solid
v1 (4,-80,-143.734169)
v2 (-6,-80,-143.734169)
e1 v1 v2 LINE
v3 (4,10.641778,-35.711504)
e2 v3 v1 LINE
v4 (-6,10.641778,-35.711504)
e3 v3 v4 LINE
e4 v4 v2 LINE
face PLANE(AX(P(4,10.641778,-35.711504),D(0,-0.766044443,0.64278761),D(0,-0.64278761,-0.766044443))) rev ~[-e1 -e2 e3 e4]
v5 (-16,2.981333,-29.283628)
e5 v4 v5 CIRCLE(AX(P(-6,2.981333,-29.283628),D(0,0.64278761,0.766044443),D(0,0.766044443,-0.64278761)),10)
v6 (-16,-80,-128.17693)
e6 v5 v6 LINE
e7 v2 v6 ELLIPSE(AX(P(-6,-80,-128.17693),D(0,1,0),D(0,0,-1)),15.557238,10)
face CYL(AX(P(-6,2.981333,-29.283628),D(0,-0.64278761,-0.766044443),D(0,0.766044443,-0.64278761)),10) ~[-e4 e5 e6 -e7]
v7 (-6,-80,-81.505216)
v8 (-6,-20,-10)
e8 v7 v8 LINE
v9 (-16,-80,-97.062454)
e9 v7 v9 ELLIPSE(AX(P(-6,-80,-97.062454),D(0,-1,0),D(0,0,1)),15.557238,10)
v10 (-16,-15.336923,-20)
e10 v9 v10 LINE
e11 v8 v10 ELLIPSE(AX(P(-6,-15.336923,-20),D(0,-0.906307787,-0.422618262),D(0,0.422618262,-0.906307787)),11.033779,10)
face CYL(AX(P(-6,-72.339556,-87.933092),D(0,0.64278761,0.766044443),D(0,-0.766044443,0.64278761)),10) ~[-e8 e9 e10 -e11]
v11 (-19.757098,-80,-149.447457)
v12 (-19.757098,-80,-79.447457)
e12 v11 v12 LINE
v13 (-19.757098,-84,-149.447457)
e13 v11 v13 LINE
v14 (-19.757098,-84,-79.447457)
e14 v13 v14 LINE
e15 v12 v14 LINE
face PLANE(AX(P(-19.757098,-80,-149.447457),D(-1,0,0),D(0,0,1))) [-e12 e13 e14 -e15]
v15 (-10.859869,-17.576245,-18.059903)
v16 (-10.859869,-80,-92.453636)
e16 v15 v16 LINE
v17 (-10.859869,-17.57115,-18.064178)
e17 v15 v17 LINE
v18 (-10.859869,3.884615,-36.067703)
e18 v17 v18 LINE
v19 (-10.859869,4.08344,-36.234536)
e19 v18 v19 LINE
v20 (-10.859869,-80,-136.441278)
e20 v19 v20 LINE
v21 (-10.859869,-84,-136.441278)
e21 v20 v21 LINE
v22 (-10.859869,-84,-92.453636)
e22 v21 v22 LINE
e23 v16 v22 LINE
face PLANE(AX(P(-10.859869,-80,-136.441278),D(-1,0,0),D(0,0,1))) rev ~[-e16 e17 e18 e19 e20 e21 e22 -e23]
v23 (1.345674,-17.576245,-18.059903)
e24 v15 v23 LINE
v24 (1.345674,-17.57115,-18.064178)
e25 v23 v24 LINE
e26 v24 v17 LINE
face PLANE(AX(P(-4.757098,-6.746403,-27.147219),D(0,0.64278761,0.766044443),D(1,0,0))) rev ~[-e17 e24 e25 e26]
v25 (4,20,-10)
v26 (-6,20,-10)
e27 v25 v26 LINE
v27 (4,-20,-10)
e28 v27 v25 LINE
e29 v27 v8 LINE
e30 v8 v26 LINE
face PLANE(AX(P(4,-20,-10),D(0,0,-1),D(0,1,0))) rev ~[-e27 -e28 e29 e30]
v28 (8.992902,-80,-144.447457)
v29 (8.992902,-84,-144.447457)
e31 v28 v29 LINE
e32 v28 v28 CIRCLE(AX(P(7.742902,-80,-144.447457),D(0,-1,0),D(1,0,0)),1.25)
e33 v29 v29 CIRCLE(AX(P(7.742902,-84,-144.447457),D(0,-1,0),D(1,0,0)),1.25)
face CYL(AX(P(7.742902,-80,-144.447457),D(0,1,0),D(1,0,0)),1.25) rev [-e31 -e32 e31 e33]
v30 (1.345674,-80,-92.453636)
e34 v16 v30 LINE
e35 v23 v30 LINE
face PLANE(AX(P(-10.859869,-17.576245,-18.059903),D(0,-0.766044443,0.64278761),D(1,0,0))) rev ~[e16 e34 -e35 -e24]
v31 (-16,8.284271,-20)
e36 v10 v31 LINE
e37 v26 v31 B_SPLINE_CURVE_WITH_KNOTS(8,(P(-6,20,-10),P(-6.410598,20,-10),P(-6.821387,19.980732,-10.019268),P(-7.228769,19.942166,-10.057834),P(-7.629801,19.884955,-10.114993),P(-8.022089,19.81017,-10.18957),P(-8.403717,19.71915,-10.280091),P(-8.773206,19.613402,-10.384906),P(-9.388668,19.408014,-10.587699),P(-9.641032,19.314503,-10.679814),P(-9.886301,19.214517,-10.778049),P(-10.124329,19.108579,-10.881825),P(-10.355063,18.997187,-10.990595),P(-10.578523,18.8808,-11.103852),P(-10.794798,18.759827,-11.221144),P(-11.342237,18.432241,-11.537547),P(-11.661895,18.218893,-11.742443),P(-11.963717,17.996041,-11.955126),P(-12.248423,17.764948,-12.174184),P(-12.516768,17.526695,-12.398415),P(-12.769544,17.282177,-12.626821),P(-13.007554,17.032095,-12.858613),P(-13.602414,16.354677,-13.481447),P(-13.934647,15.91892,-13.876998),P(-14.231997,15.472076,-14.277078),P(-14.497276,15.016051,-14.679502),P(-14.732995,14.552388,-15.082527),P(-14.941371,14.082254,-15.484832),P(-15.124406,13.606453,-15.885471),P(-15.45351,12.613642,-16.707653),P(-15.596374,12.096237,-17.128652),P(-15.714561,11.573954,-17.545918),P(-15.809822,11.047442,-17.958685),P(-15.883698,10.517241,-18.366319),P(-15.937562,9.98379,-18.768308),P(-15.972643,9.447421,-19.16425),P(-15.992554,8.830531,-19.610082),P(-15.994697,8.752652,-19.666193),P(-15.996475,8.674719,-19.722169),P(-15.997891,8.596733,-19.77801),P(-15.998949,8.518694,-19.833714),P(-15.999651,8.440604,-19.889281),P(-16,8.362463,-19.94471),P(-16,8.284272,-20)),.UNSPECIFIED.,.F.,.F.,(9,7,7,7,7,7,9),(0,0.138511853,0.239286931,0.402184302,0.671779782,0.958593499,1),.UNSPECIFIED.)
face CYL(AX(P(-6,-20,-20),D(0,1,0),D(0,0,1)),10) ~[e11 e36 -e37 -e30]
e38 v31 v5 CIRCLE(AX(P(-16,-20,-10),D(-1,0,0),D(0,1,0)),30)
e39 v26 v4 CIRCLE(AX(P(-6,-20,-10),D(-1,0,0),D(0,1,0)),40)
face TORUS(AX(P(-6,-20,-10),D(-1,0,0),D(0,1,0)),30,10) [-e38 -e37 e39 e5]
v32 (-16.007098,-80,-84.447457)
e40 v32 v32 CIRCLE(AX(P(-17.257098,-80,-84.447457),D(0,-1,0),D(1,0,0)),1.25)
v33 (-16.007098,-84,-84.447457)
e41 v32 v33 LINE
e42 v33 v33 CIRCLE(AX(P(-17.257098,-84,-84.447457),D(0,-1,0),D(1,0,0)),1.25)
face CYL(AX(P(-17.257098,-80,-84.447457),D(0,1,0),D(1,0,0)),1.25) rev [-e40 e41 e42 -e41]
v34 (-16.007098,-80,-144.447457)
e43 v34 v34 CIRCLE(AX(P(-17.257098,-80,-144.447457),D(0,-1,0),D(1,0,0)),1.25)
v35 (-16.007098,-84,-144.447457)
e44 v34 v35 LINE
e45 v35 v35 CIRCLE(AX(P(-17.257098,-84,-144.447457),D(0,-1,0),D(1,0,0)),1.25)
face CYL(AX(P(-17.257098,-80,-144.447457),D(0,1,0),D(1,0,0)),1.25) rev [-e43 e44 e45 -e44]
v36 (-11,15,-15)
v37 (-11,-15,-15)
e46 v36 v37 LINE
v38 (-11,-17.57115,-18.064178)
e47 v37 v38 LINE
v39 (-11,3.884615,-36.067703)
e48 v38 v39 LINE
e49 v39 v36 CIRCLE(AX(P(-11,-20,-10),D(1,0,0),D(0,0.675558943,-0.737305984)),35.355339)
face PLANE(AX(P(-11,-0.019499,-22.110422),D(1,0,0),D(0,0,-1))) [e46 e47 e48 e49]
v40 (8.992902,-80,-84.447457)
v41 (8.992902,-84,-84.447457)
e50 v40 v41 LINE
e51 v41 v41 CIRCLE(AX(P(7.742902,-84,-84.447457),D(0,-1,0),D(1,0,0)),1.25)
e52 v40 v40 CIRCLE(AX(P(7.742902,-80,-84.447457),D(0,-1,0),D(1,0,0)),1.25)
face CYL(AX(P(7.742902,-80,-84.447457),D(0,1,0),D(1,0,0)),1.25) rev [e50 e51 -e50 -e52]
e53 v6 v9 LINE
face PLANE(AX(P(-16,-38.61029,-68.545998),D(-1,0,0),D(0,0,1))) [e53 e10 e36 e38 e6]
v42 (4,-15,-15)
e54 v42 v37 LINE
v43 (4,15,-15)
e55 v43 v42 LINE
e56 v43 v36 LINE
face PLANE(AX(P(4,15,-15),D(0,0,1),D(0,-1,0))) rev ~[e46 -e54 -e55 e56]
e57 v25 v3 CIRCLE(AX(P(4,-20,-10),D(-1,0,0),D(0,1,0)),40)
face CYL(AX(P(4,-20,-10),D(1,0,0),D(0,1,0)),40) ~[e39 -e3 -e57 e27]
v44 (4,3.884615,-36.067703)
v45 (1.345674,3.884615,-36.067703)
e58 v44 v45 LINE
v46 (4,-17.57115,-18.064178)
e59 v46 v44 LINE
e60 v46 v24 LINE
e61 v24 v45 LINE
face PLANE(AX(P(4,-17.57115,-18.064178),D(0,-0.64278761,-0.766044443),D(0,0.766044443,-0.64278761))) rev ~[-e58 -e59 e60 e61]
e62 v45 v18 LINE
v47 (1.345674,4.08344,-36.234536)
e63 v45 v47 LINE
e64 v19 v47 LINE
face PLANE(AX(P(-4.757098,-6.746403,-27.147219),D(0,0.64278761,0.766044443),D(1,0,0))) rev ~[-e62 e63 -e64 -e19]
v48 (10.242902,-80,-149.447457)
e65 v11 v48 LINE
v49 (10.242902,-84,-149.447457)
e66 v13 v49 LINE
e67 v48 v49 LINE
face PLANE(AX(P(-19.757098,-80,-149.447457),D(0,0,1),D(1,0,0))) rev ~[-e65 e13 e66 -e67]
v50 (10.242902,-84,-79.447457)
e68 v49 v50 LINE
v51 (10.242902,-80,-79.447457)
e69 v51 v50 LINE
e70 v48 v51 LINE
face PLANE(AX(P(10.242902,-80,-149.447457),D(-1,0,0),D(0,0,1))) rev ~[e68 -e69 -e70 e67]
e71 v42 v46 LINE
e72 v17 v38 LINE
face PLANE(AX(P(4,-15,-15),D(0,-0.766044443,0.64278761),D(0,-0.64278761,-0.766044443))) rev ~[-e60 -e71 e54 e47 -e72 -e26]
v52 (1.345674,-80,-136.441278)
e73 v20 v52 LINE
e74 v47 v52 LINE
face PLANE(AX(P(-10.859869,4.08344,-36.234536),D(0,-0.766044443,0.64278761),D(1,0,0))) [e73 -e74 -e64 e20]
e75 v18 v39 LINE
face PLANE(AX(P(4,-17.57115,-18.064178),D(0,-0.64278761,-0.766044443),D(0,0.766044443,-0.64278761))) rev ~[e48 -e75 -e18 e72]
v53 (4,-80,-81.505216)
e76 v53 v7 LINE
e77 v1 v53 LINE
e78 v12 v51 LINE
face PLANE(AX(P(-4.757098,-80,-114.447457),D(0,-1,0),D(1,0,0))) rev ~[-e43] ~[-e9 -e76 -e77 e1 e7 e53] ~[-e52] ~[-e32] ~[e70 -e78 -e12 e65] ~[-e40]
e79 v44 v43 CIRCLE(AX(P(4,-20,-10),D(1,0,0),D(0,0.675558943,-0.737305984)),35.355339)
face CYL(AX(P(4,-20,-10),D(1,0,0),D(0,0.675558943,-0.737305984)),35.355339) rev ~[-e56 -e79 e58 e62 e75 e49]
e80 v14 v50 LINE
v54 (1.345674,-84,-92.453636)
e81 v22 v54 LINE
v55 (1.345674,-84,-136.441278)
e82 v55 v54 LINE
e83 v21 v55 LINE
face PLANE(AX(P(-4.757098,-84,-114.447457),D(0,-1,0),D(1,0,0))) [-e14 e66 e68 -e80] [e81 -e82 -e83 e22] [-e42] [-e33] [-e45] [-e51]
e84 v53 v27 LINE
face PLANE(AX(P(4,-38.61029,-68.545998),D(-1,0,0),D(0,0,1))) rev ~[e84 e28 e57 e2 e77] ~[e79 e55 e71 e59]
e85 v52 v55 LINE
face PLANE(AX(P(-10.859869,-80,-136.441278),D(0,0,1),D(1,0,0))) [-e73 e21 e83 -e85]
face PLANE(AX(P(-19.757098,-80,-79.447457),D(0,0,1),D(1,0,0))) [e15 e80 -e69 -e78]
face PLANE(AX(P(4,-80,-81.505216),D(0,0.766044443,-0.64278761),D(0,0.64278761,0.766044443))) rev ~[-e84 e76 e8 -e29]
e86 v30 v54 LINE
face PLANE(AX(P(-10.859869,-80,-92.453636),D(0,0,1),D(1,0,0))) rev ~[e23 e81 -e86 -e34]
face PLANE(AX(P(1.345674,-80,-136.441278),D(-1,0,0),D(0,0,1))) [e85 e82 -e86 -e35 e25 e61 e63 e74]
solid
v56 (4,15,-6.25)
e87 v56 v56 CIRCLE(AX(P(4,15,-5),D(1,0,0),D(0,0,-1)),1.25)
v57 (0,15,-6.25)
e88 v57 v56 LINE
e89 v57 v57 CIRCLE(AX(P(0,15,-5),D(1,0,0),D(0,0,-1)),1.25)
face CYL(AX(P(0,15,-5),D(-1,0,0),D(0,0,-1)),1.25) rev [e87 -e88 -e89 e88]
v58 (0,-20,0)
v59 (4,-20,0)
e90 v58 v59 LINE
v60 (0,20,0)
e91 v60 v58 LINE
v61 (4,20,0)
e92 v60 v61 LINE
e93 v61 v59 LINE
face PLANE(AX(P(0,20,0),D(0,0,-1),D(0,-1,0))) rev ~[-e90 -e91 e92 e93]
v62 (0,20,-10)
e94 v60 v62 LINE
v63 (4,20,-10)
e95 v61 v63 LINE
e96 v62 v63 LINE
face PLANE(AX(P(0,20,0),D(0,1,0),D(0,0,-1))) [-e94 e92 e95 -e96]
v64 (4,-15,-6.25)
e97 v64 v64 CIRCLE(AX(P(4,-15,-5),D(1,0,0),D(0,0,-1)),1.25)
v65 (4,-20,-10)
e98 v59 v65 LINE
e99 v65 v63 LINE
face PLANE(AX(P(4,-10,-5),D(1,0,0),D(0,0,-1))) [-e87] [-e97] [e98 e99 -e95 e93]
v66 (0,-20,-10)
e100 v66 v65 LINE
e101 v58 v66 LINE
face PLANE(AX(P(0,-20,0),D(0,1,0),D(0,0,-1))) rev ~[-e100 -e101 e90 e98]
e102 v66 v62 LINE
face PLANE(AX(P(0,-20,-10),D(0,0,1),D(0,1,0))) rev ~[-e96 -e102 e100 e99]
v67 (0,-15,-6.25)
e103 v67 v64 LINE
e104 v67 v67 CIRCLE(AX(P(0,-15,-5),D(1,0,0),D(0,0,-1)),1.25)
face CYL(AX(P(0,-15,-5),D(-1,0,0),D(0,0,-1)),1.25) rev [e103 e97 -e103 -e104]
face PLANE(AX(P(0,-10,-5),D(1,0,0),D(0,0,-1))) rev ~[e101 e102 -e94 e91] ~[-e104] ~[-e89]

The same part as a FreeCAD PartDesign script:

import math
import FreeCAD as App
import Part
import Sketcher

V = App.Vector
Q = App.Units.Quantity


def edges_at(feature, points):
    """Names of the edges that pass closest to the given points."""
    edges = feature.Shape.Edges
    near = lambda p: min(range(len(edges)), key=lambda i: edges[i].distToShape(Part.Vertex(*p))[0])
    return sorted({f"Edge{near(p) + 1}" for p in points})

doc = App.newDocument("Part")
params = doc.addObject("Spreadsheet::Sheet", "Params")
for row, (alias, value) in enumerate([
    ("sketch1_diameter", "2.5 mm"),
    ("sketch1_width", "40 mm"),
    ("sketch1_height", "10 mm"),
    ("pad1_length", "4 mm"),
    ("sketch2_radius", "40 mm"),
    ("pad2_length", "20 mm"),
    ("fillet_radius", "10 mm"),
    ("sketch3_diameter", "2.5 mm"),
    ("sketch3_width", "30 mm"),
    ("sketch3_length", "4 mm"),
    ("pocket1_length", "15 mm"),
    ("sketch5_diameter", "2.5 mm"),
    ("sketch5_width", "30 mm"),
    ("sketch5_height", "70 mm"),
    ("pad3_length", "4 mm"),
], start=1):
    params.set(f"A{row}", alias)
    params.set(f"B{row}", "=" + value)
    params.setAlias(f"B{row}", alias)

body = doc.addObject("PartDesign::Body", "Body")

sketch1 = doc.addObject("Sketcher::SketchObject", "Sketch")
body.addObject(sketch1)
sketch1.AttachmentSupport = (doc.YZ_Plane, [""])
sketch1.MapMode = "FlatFace"
sketch1.addGeometry(Part.LineSegment(V(-20, 0, 0), V(-20, -10, 0)), False)
sketch1.addGeometry(Part.LineSegment(V(-20, -10, 0), V(20, -10, 0)), False)
sketch1.addGeometry(Part.LineSegment(V(20, -10, 0), V(20, 0, 0)), False)
sketch1.addGeometry(Part.LineSegment(V(20, 0, 0), V(-20, 0, 0)), False)
sketch1.addGeometry(Part.Circle(V(-15, -5, 0), V(0, 0, 1), 1.2), False)
sketch1.addGeometry(Part.Circle(V(15, -5, 0), V(0, 0, 1), 1.2), False)
sketch1.addConstraint(Sketcher.Constraint("Coincident", 0, 2, 1, 1))
sketch1.addConstraint(Sketcher.Constraint("Coincident", 1, 2, 2, 1))
sketch1.addConstraint(Sketcher.Constraint("Coincident", 2, 2, 3, 1))
sketch1.addConstraint(Sketcher.Constraint("Coincident", 3, 2, 0, 1))
sketch1.addConstraint(Sketcher.Constraint("Vertical", 0))
sketch1.addConstraint(Sketcher.Constraint("Horizontal", 1))
sketch1.addConstraint(Sketcher.Constraint("Vertical", 2))
sketch1.addConstraint(Sketcher.Constraint("Horizontal", 3))
sketch1.addConstraint(Sketcher.Constraint("Equal", 4, 5))
sketch1.addConstraint(Sketcher.Constraint("Symmetric", 2, 2, 3, 2, -1, 1))
sketch1.addConstraint(Sketcher.Constraint("Symmetric", 4, 3, 5, 3, -2))
sketch1.addConstraint(Sketcher.Constraint("Diameter", 4, 2.5))
sketch1.addConstraint(Sketcher.Constraint("DistanceX", 1, 1, 1, 2, 40.0))
sketch1.addConstraint(Sketcher.Constraint("DistanceY", 0, 2, 0, 1, 10.0))
sketch1.addConstraint(Sketcher.Constraint("DistanceX", 4, 3, -1, 1, 15.0))
sketch1.addConstraint(Sketcher.Constraint("DistanceY", 4, 3, -1, 1, 5.0))
sketch1.setExpression("Constraints[11]", "Params.sketch1_diameter")
sketch1.setExpression("Constraints[12]", "Params.sketch1_width")
sketch1.setExpression("Constraints[13]", "Params.sketch1_height")
pad1 = doc.addObject("PartDesign::Pad", "Pad")
body.addObject(pad1)
pad1.Profile = sketch1
pad1.setExpression("Length", "Params.pad1_length")
body2 = doc.addObject("PartDesign::Body", "Body001")

sketch2 = doc.addObject("Sketcher::SketchObject", "Sketch001")
body2.addObject(sketch2)
sketch2.AttachmentSupport = (doc.getObject("YZ_Plane001"), [""])
sketch2.MapMode = "FlatFace"
sketch2.AttachmentOffset = App.Placement(V(0, 0, 4), App.Rotation())
sketch2.addGeometry(Part.ArcOfCircle(Part.Circle(V(-20, -10, 0), V(0, 0, 1), 40), math.radians(-40), math.radians(0)), False)
sketch2.addGeometry(Part.LineSegment(V(20, -10, 0), V(-20, -10, 0)), False)
sketch2.addGeometry(Part.LineSegment(V(-20, -10, 0), V(-80, -82, 0)), False)
sketch2.addGeometry(Part.LineSegment(V(-80, -82, 0), V(-80, -144, 0)), False)
sketch2.addGeometry(Part.LineSegment(V(-80, -144, 0), V(11, -36, 0)), False)
sketch2.addConstraint(Sketcher.Constraint("Coincident", 0, 2, 1, 1))
sketch2.addConstraint(Sketcher.Constraint("Coincident", 1, 2, 2, 1))
sketch2.addConstraint(Sketcher.Constraint("Coincident", 2, 2, 3, 1))
sketch2.addConstraint(Sketcher.Constraint("Coincident", 3, 2, 4, 1))
sketch2.addConstraint(Sketcher.Constraint("Tangent", 4, 2, 0, 1))
sketch2.addConstraint(Sketcher.Constraint("Horizontal", 1))
sketch2.addConstraint(Sketcher.Constraint("Vertical", 3))
sketch2.addConstraint(Sketcher.Constraint("Coincident", 1, 2, 0, 3))
sketch2.addConstraint(Sketcher.Constraint("Parallel", 2, 4))
sketch2.addConstraint(Sketcher.Constraint("Radius", 0, 40.0))
sketch2.addConstraint(Sketcher.Constraint("Angle", 2, Q("-130 deg")))
sketch2.addConstraint(Sketcher.Constraint("DistanceX", 0, 3, -1, 1, 20.0))
sketch2.addConstraint(Sketcher.Constraint("DistanceY", 0, 3, -1, 1, 10.0))
sketch2.addConstraint(Sketcher.Constraint("DistanceX", 2, 2, -1, 1, 80.0))
sketch2.setExpression("Constraints[9]", "Params.sketch2_radius")
pad2 = doc.addObject("PartDesign::Pad", "Pad001")
body2.addObject(pad2)
pad2.Profile = sketch2
pad2.setExpression("Length", "Params.pad2_length")
pad2.Reversed = True
doc.recompute()

fillet = doc.addObject("PartDesign::Fillet", "Fillet")
body2.addObject(fillet)
fillet.Base = (pad2, edges_at(pad2, [
    (-16, 0, -10),
    (-16, -50, -45.753),
    (-16, -34.679, -89.723),
    (-16, 17.588, -23.681),
]))
fillet.setExpression("Radius", "Params.fillet_radius")

sketch3 = doc.addObject("Sketcher::SketchObject", "Sketch002")
body2.addObject(sketch3)
sketch3.AttachmentSupport = (doc.getObject("YZ_Plane001"), [""])
sketch3.MapMode = "FlatFace"
sketch3.AttachmentOffset = App.Placement(V(0, 0, 4), App.Rotation())
sketch3.addGeometry(Part.Circle(V(-15, -5, 0), V(0, 0, 1), 1.2), False)
sketch3.addGeometry(Part.Circle(V(15, -5, 0), V(0, 0, 1), 1.2), False)
sketch3.addGeometry(Part.LineSegment(V(15, -15, 0), V(-15, -15, 0)), False)
sketch3.addGeometry(Part.LineSegment(V(-15, -15, 0), V(-17.6, -18.1, 0)), False)
sketch3.addGeometry(Part.LineSegment(V(-17.6, -18.1, 0), V(3.9, -36.1, 0)), False)
sketch3.addGeometry(Part.ArcOfCircle(Part.Circle(V(-20, -10, 0), V(0, 0, 1), 35.4), math.radians(-48), math.radians(-8)), False)
sketch3.addConstraint(Sketcher.Constraint("Coincident", 2, 2, 3, 1))
sketch3.addConstraint(Sketcher.Constraint("Coincident", 3, 2, 4, 1))
sketch3.addConstraint(Sketcher.Constraint("Coincident", 4, 2, 5, 1))
sketch3.addConstraint(Sketcher.Constraint("Coincident", 5, 2, 2, 1))
sketch3.addConstraint(Sketcher.Constraint("Horizontal", 2))
sketch3.addConstraint(Sketcher.Constraint("Equal", 0, 1))
sketch3.addConstraint(Sketcher.Constraint("Symmetric", 0, 3, 1, 3, -2))
sketch3.addConstraint(Sketcher.Constraint("Perpendicular", 3, 4))
sketch3.addConstraint(Sketcher.Constraint("Vertical", 0, 3, 2, 2))
sketch3.addConstraint(Sketcher.Constraint("Vertical", 1, 3, 5, 2))
sketch3.addConstraint(Sketcher.Constraint("Diameter", 0, 2.5))
sketch3.addConstraint(Sketcher.Constraint("DistanceX", 2, 2, 2, 1, 30.0))
sketch3.addConstraint(Sketcher.Constraint("Angle", 3, Q("-130 deg")))
sketch3.addConstraint(Sketcher.Constraint("Distance", 3, 4.0))
sketch3.addConstraint(Sketcher.Constraint("DistanceY", 0, 3, -1, 1, 5.0))
sketch3.addConstraint(Sketcher.Constraint("DistanceX", 5, 3, -1, 1, 20.0))
sketch3.addConstraint(Sketcher.Constraint("DistanceY", 5, 3, -1, 1, 10.0))
sketch3.addConstraint(Sketcher.Constraint("DistanceY", 2, 2, -1, 1, 15.0))
sketch3.setExpression("Constraints[10]", "Params.sketch3_diameter")
sketch3.setExpression("Constraints[11]", "Params.sketch3_width")
sketch3.setExpression("Constraints[13]", "Params.sketch3_length")
pocket1 = doc.addObject("PartDesign::Pocket", "Pocket")
body2.addObject(pocket1)
pocket1.Profile = sketch3
pocket1.setExpression("Length", "Params.pocket1_length")

sketch4 = doc.addObject("Sketcher::SketchObject", "Sketch003")
body2.addObject(sketch4)
sketch4.Placement = App.Placement(V(0, -16.154847, -19.252597), App.Rotation(V(1, 0, 0), V(0, 0.766044443, -0.64278761), V(0, 0.64278761, 0.766044443), "ZXY"))
sketch4.addGeometry(Part.LineSegment(V(-11, 26, 0), V(-11, -2, 0)), False)
sketch4.addGeometry(Part.LineSegment(V(-11, -2, 0), V(1, -2, 0)), False)
sketch4.addGeometry(Part.LineSegment(V(1, -2, 0), V(1, 26, 0)), False)
sketch4.addGeometry(Part.LineSegment(V(1, 26, 0), V(-11, 26, 0)), False)
sketch4.addConstraint(Sketcher.Constraint("Coincident", 0, 2, 1, 1))
sketch4.addConstraint(Sketcher.Constraint("Coincident", 1, 2, 2, 1))
sketch4.addConstraint(Sketcher.Constraint("Coincident", 2, 2, 3, 1))
sketch4.addConstraint(Sketcher.Constraint("Coincident", 3, 2, 0, 1))
sketch4.addConstraint(Sketcher.Constraint("Vertical", 0))
sketch4.addConstraint(Sketcher.Constraint("Horizontal", 1))
sketch4.addConstraint(Sketcher.Constraint("Vertical", 2))
sketch4.addConstraint(Sketcher.Constraint("Horizontal", 3))
sketch4.addConstraint(Sketcher.Constraint("DistanceY", 0, 2, 0, 1, 28.274711))
sketch4.addConstraint(Sketcher.Constraint("DistanceX", 1, 1, 1, 2, 12.205543))
sketch4.addConstraint(Sketcher.Constraint("DistanceX", 0, 2, -1, 1, 10.859869))
sketch4.addConstraint(Sketcher.Constraint("DistanceY", 0, 2, -1, 1, 1.855504))
pocket2 = doc.addObject("PartDesign::Pocket", "Pocket001")
body2.addObject(pocket2)
pocket2.Profile = sketch4
pocket2.Type = "ThroughAll"

sketch5 = doc.addObject("Sketcher::SketchObject", "Sketch004")
body2.addObject(sketch5)
sketch5.AttachmentSupport = (doc.getObject("XZ_Plane001"), [""])
sketch5.MapMode = "FlatFace"
sketch5.AttachmentOffset = App.Placement(V(0, 0, 80), App.Rotation())
sketch5.addGeometry(Part.LineSegment(V(-19.8, -79.4, 0), V(-19.8, -149.4, 0)), False)
sketch5.addGeometry(Part.LineSegment(V(-19.8, -149.4, 0), V(10.2, -149.4, 0)), False)
sketch5.addGeometry(Part.LineSegment(V(10.2, -149.4, 0), V(10.2, -79.4, 0)), False)
sketch5.addGeometry(Part.LineSegment(V(10.2, -79.4, 0), V(-19.8, -79.4, 0)), False)
sketch5.addGeometry(Part.Circle(V(-17.3, -144.4, 0), V(0, 0, 1), 1.2), False)
sketch5.addGeometry(Part.Circle(V(7.7, -144.4, 0), V(0, 0, 1), 1.2), False)
sketch5.addGeometry(Part.Circle(V(-17.3, -84.4, 0), V(0, 0, 1), 1.2), False)
sketch5.addGeometry(Part.LineSegment(V(1.3, -136.4, 0), V(-10.9, -136.4, 0)), False)
sketch5.addGeometry(Part.LineSegment(V(-10.9, -136.4, 0), V(-10.9, -92.5, 0)), False)
sketch5.addGeometry(Part.LineSegment(V(-10.9, -92.5, 0), V(1.3, -92.5, 0)), False)
sketch5.addGeometry(Part.LineSegment(V(1.3, -92.5, 0), V(1.3, -136.4, 0)), False)
sketch5.addGeometry(Part.Circle(V(7.7, -84.4, 0), V(0, 0, 1), 1.2), False)
sketch5.addConstraint(Sketcher.Constraint("Coincident", 0, 2, 1, 1))
sketch5.addConstraint(Sketcher.Constraint("Coincident", 1, 2, 2, 1))
sketch5.addConstraint(Sketcher.Constraint("Coincident", 2, 2, 3, 1))
sketch5.addConstraint(Sketcher.Constraint("Coincident", 3, 2, 0, 1))
sketch5.addConstraint(Sketcher.Constraint("Coincident", 7, 2, 8, 1))
sketch5.addConstraint(Sketcher.Constraint("Coincident", 8, 2, 9, 1))
sketch5.addConstraint(Sketcher.Constraint("Coincident", 9, 2, 10, 1))
sketch5.addConstraint(Sketcher.Constraint("Coincident", 10, 2, 7, 1))
sketch5.addConstraint(Sketcher.Constraint("Vertical", 0))
sketch5.addConstraint(Sketcher.Constraint("Horizontal", 1))
sketch5.addConstraint(Sketcher.Constraint("Vertical", 2))
sketch5.addConstraint(Sketcher.Constraint("Horizontal", 3))
sketch5.addConstraint(Sketcher.Constraint("Horizontal", 7))
sketch5.addConstraint(Sketcher.Constraint("Vertical", 8))
sketch5.addConstraint(Sketcher.Constraint("Horizontal", 9))
sketch5.addConstraint(Sketcher.Constraint("Vertical", 10))
sketch5.addConstraint(Sketcher.Constraint("Equal", 4, 5))
sketch5.addConstraint(Sketcher.Constraint("Equal", 5, 6))
sketch5.addConstraint(Sketcher.Constraint("Equal", 6, 11))
sketch5.addConstraint(Sketcher.Constraint("Horizontal", 4, 3, 5, 3))
sketch5.addConstraint(Sketcher.Constraint("Horizontal", 6, 3, 11, 3))
sketch5.addConstraint(Sketcher.Constraint("Vertical", 4, 3, 6, 3))
sketch5.addConstraint(Sketcher.Constraint("Vertical", 5, 3, 11, 3))
sketch5.addConstraint(Sketcher.Constraint("Diameter", 4, 2.5))
sketch5.addConstraint(Sketcher.Constraint("DistanceX", 1, 1, 1, 2, 30.0))
sketch5.addConstraint(Sketcher.Constraint("DistanceY", 0, 2, 0, 1, 70.0))
sketch5.addConstraint(Sketcher.Constraint("DistanceX", 4, 3, 5, 3, 25.0))
sketch5.addConstraint(Sketcher.Constraint("DistanceY", 4, 3, 6, 3, 60.0))
sketch5.addConstraint(Sketcher.Constraint("DistanceY", 0, 2, 4, 3, 5.0))
sketch5.addConstraint(Sketcher.Constraint("DistanceX", 0, 2, 4, 3, 2.5))
sketch5.addConstraint(Sketcher.Constraint("DistanceY", 8, 1, 8, 2, 43.987642))
sketch5.addConstraint(Sketcher.Constraint("DistanceX", 7, 2, 7, 1, 12.205543))
sketch5.addConstraint(Sketcher.Constraint("DistanceX", 7, 2, -1, 1, 10.859869))
sketch5.addConstraint(Sketcher.Constraint("DistanceX", 4, 3, 7, 2, 6.397229))
sketch5.addConstraint(Sketcher.Constraint("DistanceY", 4, 3, 7, 2, 8.006179))
sketch5.addConstraint(Sketcher.Constraint("DistanceY", 4, 3, -1, 1, 144.447457))
sketch5.setExpression("Constraints[23]", "Params.sketch5_diameter")
sketch5.setExpression("Constraints[24]", "Params.sketch5_width")
sketch5.setExpression("Constraints[25]", "Params.sketch5_height")
pad3 = doc.addObject("PartDesign::Pad", "Pad002")
body2.addObject(pad3)
pad3.Profile = sketch5
pad3.setExpression("Length", "Params.pad3_length")

doc.recompute()
